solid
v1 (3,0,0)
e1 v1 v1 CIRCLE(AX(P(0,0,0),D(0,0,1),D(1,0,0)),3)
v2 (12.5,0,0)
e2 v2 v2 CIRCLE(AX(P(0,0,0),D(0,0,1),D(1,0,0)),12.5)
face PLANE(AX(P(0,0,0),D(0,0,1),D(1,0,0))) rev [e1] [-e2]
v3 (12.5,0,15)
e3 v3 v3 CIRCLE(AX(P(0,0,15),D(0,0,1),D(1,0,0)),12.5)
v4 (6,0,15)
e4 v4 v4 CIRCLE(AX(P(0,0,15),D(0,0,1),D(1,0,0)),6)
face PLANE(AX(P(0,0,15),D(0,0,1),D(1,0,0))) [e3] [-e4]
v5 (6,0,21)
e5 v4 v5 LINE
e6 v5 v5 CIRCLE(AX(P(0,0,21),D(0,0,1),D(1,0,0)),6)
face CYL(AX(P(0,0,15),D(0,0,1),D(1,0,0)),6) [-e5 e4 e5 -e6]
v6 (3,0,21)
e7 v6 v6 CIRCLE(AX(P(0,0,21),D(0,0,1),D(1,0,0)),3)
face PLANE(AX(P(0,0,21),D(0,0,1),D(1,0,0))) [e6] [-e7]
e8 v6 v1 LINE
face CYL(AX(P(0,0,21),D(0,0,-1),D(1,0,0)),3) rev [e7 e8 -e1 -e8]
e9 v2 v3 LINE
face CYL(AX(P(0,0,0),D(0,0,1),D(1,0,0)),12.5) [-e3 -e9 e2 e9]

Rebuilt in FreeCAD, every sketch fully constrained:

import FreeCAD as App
import Part
import Sketcher

V = App.Vector


def add_polygon(sketch, points):
    """Adds a closed chain of lines whose ends are joined by coincident constraints."""
    first, n = sketch.GeometryCount, len(points)
    for a, b in zip(points, points[1:] + points[:1]):
        sketch.addGeometry(Part.LineSegment(App.Vector(*a, 0), App.Vector(*b, 0)), False)
    for i in range(n):
        sketch.addConstraint(Sketcher.Constraint("Coincident", first + i, 2, first + (i + 1) % n, 1))

doc = App.newDocument("Part")
body = doc.addObject("PartDesign::Body", "Body")

sketch1 = body.newObject("Sketcher::SketchObject", "Sketch")
sketch1.AttachmentSupport = (doc.getObject("XZ_Plane"), [""])
sketch1.MapMode = "FlatFace"
add_polygon(sketch1, [(3, 0), (12.5, 0), (12.5, 15), (6, 15), (6, 21), (3, 21)])
sketch1.addConstraint([
    Sketcher.Constraint("Horizontal", 0),
    Sketcher.Constraint("Vertical", 1),
    Sketcher.Constraint("Horizontal", 2),
    Sketcher.Constraint("Vertical", 3),
    Sketcher.Constraint("Horizontal", 4),
    Sketcher.Constraint("Vertical", 5),
    Sketcher.Constraint("PointOnObject", 0, 2, -1),
    Sketcher.Constraint("DistanceX", 4, 2, 4, 1, 3.0),
    Sketcher.Constraint("DistanceY", 1, 1, 1, 2, 15.0),
    Sketcher.Constraint("DistanceY", 3, 1, 3, 2, 6.0),
    Sketcher.Constraint("DistanceX", 0, 1, 0, 2, 9.5),
    Sketcher.Constraint("DistanceX", -1, 1, 2, 2, 6.0),
])
revolution = body.newObject("PartDesign::Revolution", "Revolution")
revolution.Profile = sketch1
revolution.ReferenceAxis = (sketch1, ["V_Axis"])
revolution.Angle = 360

doc.recompute()
